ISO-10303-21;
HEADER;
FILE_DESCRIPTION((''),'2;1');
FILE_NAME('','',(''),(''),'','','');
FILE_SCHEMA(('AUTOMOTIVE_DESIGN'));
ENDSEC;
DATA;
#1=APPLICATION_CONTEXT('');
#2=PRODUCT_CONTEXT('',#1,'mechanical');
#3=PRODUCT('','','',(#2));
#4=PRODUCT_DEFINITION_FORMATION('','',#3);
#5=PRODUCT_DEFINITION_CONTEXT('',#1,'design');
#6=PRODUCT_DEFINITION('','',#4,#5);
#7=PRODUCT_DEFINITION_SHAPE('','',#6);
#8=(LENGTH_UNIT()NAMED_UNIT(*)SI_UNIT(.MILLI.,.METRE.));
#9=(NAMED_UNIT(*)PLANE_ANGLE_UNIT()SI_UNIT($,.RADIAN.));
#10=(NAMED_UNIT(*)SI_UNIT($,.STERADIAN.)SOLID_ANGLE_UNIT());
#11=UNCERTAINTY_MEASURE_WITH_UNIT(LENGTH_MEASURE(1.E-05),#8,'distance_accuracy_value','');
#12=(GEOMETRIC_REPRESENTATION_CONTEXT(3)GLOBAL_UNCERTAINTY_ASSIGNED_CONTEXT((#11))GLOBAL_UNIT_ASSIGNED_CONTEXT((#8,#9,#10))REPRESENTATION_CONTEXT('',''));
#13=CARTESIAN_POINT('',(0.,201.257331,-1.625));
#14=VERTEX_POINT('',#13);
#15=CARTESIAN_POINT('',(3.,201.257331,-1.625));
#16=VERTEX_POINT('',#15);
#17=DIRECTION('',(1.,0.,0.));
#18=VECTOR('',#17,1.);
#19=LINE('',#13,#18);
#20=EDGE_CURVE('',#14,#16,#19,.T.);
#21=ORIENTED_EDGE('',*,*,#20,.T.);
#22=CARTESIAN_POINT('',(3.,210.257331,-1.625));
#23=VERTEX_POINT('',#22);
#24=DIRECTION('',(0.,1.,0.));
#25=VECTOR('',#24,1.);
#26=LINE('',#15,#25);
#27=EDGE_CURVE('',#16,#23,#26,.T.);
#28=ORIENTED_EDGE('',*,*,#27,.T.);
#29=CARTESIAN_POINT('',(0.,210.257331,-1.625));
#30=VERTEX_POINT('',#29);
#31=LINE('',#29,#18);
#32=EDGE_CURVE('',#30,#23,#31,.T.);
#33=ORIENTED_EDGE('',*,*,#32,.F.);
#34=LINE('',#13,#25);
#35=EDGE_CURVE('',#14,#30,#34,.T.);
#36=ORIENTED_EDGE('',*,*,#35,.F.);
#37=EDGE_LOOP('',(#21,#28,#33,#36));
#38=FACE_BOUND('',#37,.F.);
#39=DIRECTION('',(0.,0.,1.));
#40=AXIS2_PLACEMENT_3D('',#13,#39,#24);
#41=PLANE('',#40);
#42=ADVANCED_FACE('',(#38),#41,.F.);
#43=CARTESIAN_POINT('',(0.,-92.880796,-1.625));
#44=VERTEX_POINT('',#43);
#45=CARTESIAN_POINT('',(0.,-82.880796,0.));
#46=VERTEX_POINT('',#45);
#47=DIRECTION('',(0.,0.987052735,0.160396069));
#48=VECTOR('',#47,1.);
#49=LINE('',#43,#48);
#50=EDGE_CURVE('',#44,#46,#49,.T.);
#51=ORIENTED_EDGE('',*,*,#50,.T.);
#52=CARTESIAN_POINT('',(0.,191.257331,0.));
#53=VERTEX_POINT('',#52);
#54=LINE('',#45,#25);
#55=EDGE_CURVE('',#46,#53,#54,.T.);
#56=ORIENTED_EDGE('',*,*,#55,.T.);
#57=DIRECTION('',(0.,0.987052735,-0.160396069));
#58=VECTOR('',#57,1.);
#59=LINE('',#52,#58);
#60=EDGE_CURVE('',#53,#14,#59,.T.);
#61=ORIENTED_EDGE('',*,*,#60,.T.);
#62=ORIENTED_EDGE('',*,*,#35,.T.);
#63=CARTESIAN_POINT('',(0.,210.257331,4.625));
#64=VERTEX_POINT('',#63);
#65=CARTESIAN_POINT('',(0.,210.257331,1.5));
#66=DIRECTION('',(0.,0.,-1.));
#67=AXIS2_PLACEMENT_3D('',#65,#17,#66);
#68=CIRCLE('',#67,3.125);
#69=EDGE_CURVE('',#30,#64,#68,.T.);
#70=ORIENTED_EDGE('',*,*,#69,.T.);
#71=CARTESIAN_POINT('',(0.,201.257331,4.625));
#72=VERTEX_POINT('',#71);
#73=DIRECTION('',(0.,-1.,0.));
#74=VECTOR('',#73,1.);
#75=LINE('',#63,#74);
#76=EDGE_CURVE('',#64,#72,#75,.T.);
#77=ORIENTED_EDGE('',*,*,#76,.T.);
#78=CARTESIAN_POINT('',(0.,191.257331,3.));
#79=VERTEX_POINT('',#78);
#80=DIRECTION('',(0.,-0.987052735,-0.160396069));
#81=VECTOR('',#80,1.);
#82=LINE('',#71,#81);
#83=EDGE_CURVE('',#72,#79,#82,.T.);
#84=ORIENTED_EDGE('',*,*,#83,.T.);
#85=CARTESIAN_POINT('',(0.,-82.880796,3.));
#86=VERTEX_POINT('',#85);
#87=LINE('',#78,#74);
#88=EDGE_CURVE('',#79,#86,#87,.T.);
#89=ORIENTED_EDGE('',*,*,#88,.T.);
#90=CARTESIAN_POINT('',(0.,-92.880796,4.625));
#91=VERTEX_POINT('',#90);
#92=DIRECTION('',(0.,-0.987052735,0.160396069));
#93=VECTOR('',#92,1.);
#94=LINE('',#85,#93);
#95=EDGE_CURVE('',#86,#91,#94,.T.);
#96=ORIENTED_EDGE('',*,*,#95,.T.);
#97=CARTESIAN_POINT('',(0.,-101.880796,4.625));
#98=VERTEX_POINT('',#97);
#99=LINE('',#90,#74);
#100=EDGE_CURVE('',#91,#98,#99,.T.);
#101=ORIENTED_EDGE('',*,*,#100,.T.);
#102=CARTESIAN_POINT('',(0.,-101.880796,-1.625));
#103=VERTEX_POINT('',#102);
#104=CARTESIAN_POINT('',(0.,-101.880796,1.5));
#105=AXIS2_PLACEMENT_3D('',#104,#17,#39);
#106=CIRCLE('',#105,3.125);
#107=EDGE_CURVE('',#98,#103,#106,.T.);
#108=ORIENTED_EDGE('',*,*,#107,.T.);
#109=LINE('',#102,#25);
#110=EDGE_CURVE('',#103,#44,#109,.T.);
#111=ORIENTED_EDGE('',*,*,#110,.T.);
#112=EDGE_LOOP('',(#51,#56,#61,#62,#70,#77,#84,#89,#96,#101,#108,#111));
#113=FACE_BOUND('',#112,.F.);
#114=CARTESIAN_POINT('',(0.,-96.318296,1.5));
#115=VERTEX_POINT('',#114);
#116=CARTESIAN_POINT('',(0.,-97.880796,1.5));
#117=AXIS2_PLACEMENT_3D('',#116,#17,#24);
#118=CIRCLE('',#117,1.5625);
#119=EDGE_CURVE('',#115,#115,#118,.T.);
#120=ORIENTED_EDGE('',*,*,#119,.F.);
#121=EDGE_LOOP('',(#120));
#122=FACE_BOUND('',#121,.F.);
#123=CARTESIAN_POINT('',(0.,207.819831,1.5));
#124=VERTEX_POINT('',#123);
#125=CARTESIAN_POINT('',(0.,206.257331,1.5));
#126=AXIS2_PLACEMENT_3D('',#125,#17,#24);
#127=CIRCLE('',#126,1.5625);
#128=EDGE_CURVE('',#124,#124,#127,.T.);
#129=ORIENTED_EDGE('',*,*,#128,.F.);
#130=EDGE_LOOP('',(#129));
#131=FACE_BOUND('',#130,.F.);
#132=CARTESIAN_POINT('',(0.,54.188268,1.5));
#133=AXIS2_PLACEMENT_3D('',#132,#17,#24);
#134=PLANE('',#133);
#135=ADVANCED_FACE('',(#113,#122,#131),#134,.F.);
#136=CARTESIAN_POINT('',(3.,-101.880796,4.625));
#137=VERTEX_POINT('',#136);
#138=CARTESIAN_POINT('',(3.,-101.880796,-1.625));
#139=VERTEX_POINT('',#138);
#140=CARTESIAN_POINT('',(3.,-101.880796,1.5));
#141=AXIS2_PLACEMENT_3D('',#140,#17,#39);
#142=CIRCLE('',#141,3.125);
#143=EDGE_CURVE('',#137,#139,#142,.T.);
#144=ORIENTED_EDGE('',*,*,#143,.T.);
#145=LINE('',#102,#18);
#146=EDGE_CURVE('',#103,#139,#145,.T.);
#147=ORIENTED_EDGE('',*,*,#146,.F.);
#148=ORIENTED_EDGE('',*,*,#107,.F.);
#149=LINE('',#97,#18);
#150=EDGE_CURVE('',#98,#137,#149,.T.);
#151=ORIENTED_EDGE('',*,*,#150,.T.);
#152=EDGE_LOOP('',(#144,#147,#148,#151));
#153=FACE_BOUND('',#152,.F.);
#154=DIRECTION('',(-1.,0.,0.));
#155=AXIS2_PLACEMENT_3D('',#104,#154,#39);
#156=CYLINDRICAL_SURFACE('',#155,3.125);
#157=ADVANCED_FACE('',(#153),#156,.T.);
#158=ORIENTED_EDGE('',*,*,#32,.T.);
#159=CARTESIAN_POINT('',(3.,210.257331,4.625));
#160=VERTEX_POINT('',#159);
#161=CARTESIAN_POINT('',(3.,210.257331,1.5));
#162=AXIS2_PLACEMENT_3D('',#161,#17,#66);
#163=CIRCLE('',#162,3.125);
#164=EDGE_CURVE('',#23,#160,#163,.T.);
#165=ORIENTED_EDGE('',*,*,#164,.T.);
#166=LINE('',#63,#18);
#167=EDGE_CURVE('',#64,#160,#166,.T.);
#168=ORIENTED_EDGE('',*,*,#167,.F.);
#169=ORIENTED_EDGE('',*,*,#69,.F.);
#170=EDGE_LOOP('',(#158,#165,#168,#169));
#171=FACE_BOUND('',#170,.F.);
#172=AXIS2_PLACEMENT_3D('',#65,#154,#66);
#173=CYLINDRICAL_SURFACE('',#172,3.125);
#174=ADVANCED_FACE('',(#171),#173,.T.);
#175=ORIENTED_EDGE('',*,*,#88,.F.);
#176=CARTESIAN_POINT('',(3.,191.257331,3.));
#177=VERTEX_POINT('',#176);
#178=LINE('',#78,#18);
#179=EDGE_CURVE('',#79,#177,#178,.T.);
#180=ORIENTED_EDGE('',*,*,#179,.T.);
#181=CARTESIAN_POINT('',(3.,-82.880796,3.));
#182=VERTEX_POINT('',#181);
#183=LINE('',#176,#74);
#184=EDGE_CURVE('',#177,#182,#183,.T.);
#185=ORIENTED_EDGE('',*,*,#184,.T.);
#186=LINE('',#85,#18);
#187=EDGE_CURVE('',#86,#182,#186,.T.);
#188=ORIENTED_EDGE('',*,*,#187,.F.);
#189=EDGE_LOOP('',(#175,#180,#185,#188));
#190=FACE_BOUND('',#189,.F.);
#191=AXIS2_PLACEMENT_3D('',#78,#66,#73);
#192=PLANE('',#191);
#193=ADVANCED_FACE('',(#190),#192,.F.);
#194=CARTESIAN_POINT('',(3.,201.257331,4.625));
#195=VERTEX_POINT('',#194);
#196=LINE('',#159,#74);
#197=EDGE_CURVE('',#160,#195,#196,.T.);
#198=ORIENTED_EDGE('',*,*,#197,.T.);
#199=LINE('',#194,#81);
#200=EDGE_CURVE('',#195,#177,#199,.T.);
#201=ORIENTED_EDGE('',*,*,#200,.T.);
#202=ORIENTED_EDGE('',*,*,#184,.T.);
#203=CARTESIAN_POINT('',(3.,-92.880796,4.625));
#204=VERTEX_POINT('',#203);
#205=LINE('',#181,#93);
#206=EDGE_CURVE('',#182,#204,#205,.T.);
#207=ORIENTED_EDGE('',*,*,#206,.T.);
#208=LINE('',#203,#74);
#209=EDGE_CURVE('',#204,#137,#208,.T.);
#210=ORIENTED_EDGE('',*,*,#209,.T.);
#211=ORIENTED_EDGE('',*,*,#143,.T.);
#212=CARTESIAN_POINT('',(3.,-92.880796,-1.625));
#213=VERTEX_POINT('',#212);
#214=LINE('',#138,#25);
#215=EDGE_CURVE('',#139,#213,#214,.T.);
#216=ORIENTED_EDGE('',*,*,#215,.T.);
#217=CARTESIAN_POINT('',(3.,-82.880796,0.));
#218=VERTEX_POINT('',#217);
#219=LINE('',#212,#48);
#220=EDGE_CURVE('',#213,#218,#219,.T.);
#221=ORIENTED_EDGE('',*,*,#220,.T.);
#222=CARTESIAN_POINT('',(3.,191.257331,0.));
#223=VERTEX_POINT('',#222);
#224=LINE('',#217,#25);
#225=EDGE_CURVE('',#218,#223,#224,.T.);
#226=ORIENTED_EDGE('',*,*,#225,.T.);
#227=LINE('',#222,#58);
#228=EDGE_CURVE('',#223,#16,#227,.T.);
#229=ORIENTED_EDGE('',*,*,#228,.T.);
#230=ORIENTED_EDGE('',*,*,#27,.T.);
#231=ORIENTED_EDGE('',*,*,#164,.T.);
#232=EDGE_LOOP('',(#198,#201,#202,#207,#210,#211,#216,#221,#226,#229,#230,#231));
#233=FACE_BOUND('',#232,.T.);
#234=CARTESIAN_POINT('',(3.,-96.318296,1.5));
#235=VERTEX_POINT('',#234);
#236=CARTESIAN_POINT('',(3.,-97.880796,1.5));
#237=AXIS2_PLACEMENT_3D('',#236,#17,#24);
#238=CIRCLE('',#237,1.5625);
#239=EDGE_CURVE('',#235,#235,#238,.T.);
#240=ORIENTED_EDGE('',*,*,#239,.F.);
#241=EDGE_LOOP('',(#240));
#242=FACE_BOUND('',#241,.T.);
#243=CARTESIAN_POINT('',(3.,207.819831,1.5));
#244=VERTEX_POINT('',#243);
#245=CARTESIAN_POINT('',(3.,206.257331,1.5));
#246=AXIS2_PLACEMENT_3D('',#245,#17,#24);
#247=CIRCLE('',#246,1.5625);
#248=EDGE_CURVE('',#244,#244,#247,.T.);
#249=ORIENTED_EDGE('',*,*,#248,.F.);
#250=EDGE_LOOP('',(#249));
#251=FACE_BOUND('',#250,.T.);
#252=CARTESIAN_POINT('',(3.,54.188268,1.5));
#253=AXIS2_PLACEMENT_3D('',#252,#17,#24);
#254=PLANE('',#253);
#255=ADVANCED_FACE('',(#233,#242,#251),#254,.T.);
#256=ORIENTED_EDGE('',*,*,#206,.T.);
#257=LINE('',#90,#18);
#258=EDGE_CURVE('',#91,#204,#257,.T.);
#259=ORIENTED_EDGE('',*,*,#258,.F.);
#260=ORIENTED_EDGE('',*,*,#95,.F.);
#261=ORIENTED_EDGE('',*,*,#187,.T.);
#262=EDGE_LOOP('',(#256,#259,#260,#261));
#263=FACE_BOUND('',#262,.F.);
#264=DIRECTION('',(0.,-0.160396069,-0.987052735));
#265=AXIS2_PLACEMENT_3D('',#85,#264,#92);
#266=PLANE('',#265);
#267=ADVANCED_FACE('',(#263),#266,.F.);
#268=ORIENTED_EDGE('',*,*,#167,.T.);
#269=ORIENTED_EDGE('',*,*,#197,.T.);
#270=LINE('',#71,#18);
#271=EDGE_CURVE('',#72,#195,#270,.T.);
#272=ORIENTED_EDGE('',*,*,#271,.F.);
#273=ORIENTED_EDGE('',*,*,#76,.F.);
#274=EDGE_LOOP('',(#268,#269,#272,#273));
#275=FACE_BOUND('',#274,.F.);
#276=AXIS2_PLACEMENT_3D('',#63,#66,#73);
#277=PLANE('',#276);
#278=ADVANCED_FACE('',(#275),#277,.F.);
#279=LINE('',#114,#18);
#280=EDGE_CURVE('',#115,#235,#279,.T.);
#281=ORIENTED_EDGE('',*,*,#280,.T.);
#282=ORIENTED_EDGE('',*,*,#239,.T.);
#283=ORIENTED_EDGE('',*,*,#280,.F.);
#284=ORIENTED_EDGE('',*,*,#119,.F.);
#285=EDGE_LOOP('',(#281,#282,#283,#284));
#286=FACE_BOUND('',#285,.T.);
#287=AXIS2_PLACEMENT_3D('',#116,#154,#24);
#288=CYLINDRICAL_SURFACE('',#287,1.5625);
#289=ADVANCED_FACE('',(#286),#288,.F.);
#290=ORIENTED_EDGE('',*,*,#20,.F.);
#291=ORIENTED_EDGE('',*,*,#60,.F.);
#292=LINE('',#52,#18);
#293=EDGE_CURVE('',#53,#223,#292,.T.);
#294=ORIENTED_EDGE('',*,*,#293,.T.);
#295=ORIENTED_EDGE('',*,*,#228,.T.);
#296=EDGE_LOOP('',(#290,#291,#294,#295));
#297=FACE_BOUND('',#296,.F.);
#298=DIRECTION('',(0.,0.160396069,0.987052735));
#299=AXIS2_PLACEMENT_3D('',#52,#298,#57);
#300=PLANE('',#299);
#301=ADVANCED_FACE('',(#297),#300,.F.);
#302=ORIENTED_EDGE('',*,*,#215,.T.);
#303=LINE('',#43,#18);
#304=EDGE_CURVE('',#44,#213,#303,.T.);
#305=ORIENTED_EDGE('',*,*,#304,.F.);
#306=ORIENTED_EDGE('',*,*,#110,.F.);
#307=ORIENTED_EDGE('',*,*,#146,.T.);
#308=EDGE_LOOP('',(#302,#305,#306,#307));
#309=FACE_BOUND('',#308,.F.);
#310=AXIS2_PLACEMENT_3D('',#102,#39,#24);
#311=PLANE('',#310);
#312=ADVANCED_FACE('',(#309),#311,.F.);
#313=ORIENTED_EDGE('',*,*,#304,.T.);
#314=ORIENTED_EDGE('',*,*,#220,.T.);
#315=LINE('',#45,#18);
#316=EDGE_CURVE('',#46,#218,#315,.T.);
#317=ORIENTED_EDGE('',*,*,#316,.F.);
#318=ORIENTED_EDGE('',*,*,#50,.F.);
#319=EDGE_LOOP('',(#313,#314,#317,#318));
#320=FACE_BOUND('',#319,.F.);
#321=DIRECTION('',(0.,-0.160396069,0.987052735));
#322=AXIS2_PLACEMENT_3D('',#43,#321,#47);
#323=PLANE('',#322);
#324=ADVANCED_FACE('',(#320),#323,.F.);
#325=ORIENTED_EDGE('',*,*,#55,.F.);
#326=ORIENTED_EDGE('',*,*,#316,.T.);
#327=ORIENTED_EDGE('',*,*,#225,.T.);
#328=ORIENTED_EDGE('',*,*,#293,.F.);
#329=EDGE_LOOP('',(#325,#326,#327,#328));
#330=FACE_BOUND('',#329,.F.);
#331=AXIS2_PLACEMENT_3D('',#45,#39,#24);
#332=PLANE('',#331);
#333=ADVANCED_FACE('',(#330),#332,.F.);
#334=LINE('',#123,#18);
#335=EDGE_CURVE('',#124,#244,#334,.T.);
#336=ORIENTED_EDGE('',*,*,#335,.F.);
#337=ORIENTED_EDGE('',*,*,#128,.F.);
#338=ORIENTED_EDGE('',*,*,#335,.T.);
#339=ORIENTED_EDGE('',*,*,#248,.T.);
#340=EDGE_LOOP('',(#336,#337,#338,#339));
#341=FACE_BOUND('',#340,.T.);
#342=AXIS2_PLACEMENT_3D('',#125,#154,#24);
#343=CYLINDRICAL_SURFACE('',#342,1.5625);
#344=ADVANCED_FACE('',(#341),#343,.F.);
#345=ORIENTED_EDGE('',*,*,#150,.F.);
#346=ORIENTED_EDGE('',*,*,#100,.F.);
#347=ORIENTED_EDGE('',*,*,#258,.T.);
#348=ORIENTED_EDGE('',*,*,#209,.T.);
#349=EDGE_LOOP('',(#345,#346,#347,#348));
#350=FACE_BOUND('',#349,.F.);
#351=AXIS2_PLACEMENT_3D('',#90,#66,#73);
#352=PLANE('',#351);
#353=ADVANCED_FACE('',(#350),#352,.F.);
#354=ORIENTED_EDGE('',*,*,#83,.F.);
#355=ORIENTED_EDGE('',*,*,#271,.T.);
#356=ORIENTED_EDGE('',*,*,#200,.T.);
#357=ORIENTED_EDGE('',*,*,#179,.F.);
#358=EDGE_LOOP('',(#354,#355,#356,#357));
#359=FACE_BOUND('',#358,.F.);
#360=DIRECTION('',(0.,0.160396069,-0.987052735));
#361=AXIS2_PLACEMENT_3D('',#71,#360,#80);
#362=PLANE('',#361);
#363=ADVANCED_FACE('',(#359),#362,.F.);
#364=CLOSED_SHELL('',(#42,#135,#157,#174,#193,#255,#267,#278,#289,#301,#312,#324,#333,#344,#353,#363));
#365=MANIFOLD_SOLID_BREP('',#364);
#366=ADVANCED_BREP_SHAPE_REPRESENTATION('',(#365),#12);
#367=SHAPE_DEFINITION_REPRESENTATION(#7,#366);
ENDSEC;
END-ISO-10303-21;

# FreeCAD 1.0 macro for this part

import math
import FreeCAD as App
import Part
import Sketcher

doc = App.newDocument("Part")
body = doc.addObject("PartDesign::Body", "Body")

# Sketch on YZ plane
sketch1 = body.newObject("Sketcher::SketchObject", "Sketch")
sketch1.AttachmentSupport = (doc.getObject("YZ_Plane"), [""])
sketch1.MapMode = "FlatFace"
sketch1.addGeometry([
    Part.LineSegment(App.Vector(210.3, 4.6, 0), App.Vector(201.3, 4.6, 0)),  # 0
    Part.LineSegment(App.Vector(201.3, 4.6, 0), App.Vector(191.3, 3, 0)),  # 1
    Part.LineSegment(App.Vector(191.3, 3, 0), App.Vector(-82.9, 3, 0)),  # 2
    Part.LineSegment(App.Vector(-82.9, 3, 0), App.Vector(-92.9, 4.6, 0)),  # 3
    Part.LineSegment(App.Vector(-92.9, 4.6, 0), App.Vector(-101.9, 4.6, 0)),  # 4
    Part.ArcOfCircle(Part.Circle(App.Vector(-101.9, 1.5, 0), App.Vector(0, 0, 1), 3.1), math.radians(90), math.radians(270)),  # 5
    Part.LineSegment(App.Vector(-101.9, -1.6, 0), App.Vector(-92.9, -1.6, 0)),  # 6
    Part.LineSegment(App.Vector(-92.9, -1.6, 0), App.Vector(-82.9, 0, 0)),  # 7
    Part.LineSegment(App.Vector(-82.9, 0, 0), App.Vector(191.3, 0, 0)),  # 8
    Part.LineSegment(App.Vector(191.3, 0, 0), App.Vector(201.3, -1.6, 0)),  # 9
    Part.LineSegment(App.Vector(201.3, -1.6, 0), App.Vector(210.3, -1.6, 0)),  # 10
    Part.ArcOfCircle(Part.Circle(App.Vector(210.3, 1.5, 0), App.Vector(0, 0, 1), 3.1), math.radians(-90), math.radians(90)),  # 11
    Part.Circle(App.Vector(-97.9, 1.5, 0), App.Vector(0, 0, 1), 1.6),  # 12
    Part.Circle(App.Vector(206.3, 1.5, 0), App.Vector(0, 0, 1), 1.6),  # 13
], False)
sketch1.addConstraint([
    Sketcher.Constraint("Coincident", 0, 2, 1, 1),
    Sketcher.Constraint("Coincident", 1, 2, 2, 1),
    Sketcher.Constraint("Coincident", 2, 2, 3, 1),
    Sketcher.Constraint("Coincident", 3, 2, 4, 1),
    Sketcher.Constraint("Tangent", 4, 2, 5, 1),
    Sketcher.Constraint("Tangent", 5, 2, 6, 1),
    Sketcher.Constraint("Coincident", 6, 2, 7, 1),
    Sketcher.Constraint("Coincident", 7, 2, 8, 1),
    Sketcher.Constraint("Coincident", 8, 2, 9, 1),
    Sketcher.Constraint("Coincident", 9, 2, 10, 1),
    Sketcher.Constraint("Tangent", 10, 2, 11, 1),
    Sketcher.Constraint("Tangent", 11, 2, 0, 1),
    Sketcher.Constraint("Horizontal", 0),
    Sketcher.Constraint("Horizontal", 2),
    Sketcher.Constraint("Horizontal", 4),
    Sketcher.Constraint("Horizontal", 6),
    Sketcher.Constraint("Horizontal", 8),
    Sketcher.Constraint("Horizontal", 10),
    Sketcher.Constraint("Equal", 5, 11),
    Sketcher.Constraint("Equal", 12, 13),
    Sketcher.Constraint("PointOnObject", 7, 2, -1),
    Sketcher.Constraint("Parallel", 1, 7),
    Sketcher.Constraint("Parallel", 3, 9),
    Sketcher.Constraint("Horizontal", 5, 3, 11, 3),
    Sketcher.Constraint("Horizontal", 11, 3, 12, 3),
    Sketcher.Constraint("Horizontal", 12, 3, 13, 3),
    Sketcher.Constraint("Vertical", 3, 2, 6, 2),
    Sketcher.Constraint("Vertical", 2, 2, 7, 2),
    Sketcher.Constraint("Vertical", 1, 2, 8, 2),
    Sketcher.Constraint("Vertical", 0, 2, 9, 2),
    Sketcher.Constraint("Equal", 0, 4),
    Sketcher.Constraint("DistanceX", 0, 2, 0, 1, 9.0),
    Sketcher.Constraint("Diameter", 12, 3.125),
    Sketcher.Constraint("DistanceY", -1, 1, 1, 2, 3.0),
    Sketcher.Constraint("Radius", 5, 3.125),
    Sketcher.Constraint("DistanceX", 5, 3, 12, 3, 4.0),
    Sketcher.Constraint("DistanceX", 13, 3, 11, 3, 4.0),
    Sketcher.Constraint("DistanceX", 1, 2, 0, 2, 10.0),
    Sketcher.Constraint("DistanceX", 2, 2, 2, 1, 274.138127),
    Sketcher.Constraint("DistanceX", -1, 1, 11, 3, 210.257331),
])
pad1 = body.newObject("PartDesign::Pad", "Pad")
pad1.Profile = sketch1
pad1.Length = 3

doc.recompute()
